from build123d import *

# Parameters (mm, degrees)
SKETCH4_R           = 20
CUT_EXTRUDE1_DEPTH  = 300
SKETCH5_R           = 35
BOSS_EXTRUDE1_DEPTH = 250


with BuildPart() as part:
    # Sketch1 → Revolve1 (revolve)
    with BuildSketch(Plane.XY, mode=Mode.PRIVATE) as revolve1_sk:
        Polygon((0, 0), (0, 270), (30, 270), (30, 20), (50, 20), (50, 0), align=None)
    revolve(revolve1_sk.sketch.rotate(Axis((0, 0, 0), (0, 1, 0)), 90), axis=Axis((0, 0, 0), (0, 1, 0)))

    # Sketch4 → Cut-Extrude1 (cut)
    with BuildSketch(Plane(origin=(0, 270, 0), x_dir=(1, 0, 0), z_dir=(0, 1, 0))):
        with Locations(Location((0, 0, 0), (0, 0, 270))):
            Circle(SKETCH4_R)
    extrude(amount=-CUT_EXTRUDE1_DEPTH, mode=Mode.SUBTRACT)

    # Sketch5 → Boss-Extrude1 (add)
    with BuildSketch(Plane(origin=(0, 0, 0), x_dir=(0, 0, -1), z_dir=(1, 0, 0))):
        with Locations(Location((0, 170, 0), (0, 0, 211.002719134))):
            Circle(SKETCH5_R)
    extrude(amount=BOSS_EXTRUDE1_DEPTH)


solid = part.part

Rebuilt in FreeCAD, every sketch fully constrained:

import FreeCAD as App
import Part
import Sketcher
Q = App.Units.Quantity

doc = App.newDocument("Part")
params = doc.addObject("Spreadsheet::Sheet", "Params")
for row, (alias, value) in enumerate([
    ("sketch1_width", "50 mm"),
    ("sketch1_width2", "20 mm"),
    ("sketch1_height", "270 mm"),
    ("revolution_angle", "360 deg"),
    ("sketch2_diameter", "40 mm"),
    ("pocket1_length", "300 mm"),
    ("sketch3_diameter", "70 mm"),
    ("pad1_length", "250 mm"),
], start=1):
    params.set(f"A{row}", alias)
    params.set(f"B{row}", "=" + value)
    params.setAlias(f"B{row}", alias)

body = doc.addObject("PartDesign::Body", "Body")

# Sketch on XY plane
sketch1 = body.newObject("Sketcher::SketchObject", "Sketch")
sketch1.AttachmentSupport = (doc.getObject("XY_Plane"), [""])
sketch1.MapMode = "FlatFace"
sketch1.addGeometry(Part.LineSegment(App.Vector(0, 270, 0), App.Vector(0, 0, 0)), False)
sketch1.addGeometry(Part.LineSegment(App.Vector(0, 0, 0), App.Vector(50, 0, 0)), False)
sketch1.addGeometry(Part.LineSegment(App.Vector(50, 0, 0), App.Vector(50, 20, 0)), False)
sketch1.addGeometry(Part.LineSegment(App.Vector(50, 20, 0), App.Vector(30, 20, 0)), False)
sketch1.addGeometry(Part.LineSegment(App.Vector(30, 20, 0), App.Vector(30, 270, 0)), False)
sketch1.addGeometry(Part.LineSegment(App.Vector(30, 270, 0), App.Vector(0, 270, 0)), False)
sketch1.addConstraint(Sketcher.Constraint("Coincident", 0, 2, 1, 1))
sketch1.addConstraint(Sketcher.Constraint("Coincident", 1, 2, 2, 1))
sketch1.addConstraint(Sketcher.Constraint("Coincident", 2, 2, 3, 1))
sketch1.addConstraint(Sketcher.Constraint("Coincident", 3, 2, 4, 1))
sketch1.addConstraint(Sketcher.Constraint("Coincident", 4, 2, 5, 1))
sketch1.addConstraint(Sketcher.Constraint("Coincident", 5, 2, 0, 1))
sketch1.addConstraint(Sketcher.Constraint("Vertical", 0))
sketch1.addConstraint(Sketcher.Constraint("Horizontal", 1))
sketch1.addConstraint(Sketcher.Constraint("Vertical", 2))
sketch1.addConstraint(Sketcher.Constraint("Horizontal", 3))
sketch1.addConstraint(Sketcher.Constraint("Vertical", 4))
sketch1.addConstraint(Sketcher.Constraint("Horizontal", 5))
sketch1.addConstraint(Sketcher.Constraint("Coincident", 0, 2, -1, 1))
sketch1.addConstraint(Sketcher.Constraint("Equal", 3, 2))
sketch1.addConstraint(Sketcher.Constraint("DistanceX", 1, 1, 1, 2, Q("50 mm")))
sketch1.addConstraint(Sketcher.Constraint("DistanceX", 3, 2, 3, 1, Q("20 mm")))
sketch1.addConstraint(Sketcher.Constraint("DistanceY", 0, 2, 0, 1, Q("270 mm")))
sketch1.setExpression("Constraints[14]", "Params.sketch1_width")
sketch1.setExpression("Constraints[15]", "Params.sketch1_width2")
sketch1.setExpression("Constraints[16]", "Params.sketch1_height")
revolution = body.newObject("PartDesign::Revolution", "Revolution")
revolution.Profile = sketch1
revolution.ReferenceAxis = (sketch1, ["V_Axis"])
revolution.setExpression("Angle", "Params.revolution_angle")

# Sketch on XZ plane
sketch2 = body.newObject("Sketcher::SketchObject", "Sketch001")
sketch2.AttachmentSupport = (doc.getObject("XZ_Plane"), [""])
sketch2.MapMode = "FlatFace"
sketch2.AttachmentOffset = App.Placement(App.Vector(0, 0, -270), App.Rotation())
sketch2.addGeometry(Part.Circle(App.Vector(0, 0, 0), App.Vector(0, 0, 1), 20), False)
sketch2.addConstraint(Sketcher.Constraint("Coincident", 0, 3, -1, 1))
sketch2.addConstraint(Sketcher.Constraint("Diameter", 0, Q("40 mm")))
sketch2.setExpression("Constraints[1]", "Params.sketch2_diameter")
pocket1 = body.newObject("PartDesign::Pocket", "Pocket")
pocket1.Profile = sketch2
pocket1.setExpression("Length", "Params.pocket1_length")
pocket1.Reversed = True

# Sketch on YZ plane
sketch3 = body.newObject("Sketcher::SketchObject", "Sketch002")
sketch3.AttachmentSupport = (doc.getObject("YZ_Plane"), [""])
sketch3.MapMode = "FlatFace"
sketch3.addGeometry(Part.Circle(App.Vector(170, 0, 0), App.Vector(0, 0, 1), 35), False)
sketch3.addConstraint(Sketcher.Constraint("PointOnObject", 0, 3, -1))
sketch3.addConstraint(Sketcher.Constraint("Diameter", 0, Q("70 mm")))
sketch3.addConstraint(Sketcher.Constraint("DistanceX", -1, 1, 0, 3, Q("170 mm")))
sketch3.setExpression("Constraints[1]", "Params.sketch3_diameter")
pad1 = body.newObject("PartDesign::Pad", "Pad")
pad1.Profile = sketch3
pad1.setExpression("Length", "Params.pad1_length")

doc.recompute()
